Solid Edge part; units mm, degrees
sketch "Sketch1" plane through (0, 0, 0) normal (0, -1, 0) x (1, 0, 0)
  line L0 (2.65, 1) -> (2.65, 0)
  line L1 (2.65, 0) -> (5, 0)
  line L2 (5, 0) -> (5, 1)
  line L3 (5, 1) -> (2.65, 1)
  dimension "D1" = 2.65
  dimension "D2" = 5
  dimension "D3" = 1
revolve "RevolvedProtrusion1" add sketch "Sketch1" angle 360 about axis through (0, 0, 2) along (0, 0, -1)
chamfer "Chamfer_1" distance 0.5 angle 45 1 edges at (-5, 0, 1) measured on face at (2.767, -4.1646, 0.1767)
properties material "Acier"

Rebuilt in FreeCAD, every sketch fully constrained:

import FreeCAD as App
import Part
import Sketcher
from FreeCAD import Vector


def edges_at(feature, points):
    """Names of the edges that pass closest to the given points."""
    edges = feature.Shape.Edges
    near = lambda p: min(range(len(edges)), key=lambda i: edges[i].distToShape(Part.Vertex(*p))[0])
    return sorted({f"Edge{near(p) + 1}" for p in points})


def add_polygon(sketch, points):
    """Adds a closed chain of lines whose ends are joined by coincident constraints."""
    first, n = sketch.GeometryCount, len(points)
    for a, b in zip(points, points[1:] + points[:1]):
        sketch.addGeometry(Part.LineSegment(App.Vector(*a, 0), App.Vector(*b, 0)), False)
    for i in range(n):
        sketch.addConstraint(Sketcher.Constraint("Coincident", first + i, 2, first + (i + 1) % n, 1))

doc = App.newDocument("Part")
body = doc.addObject("PartDesign::Body", "Body")

# Sketch on XZ plane
sketch1 = doc.addObject("Sketcher::SketchObject", "Sketch")
body.addObject(sketch1)
sketch1.AttachmentSupport = (doc.XZ_Plane, [""])
sketch1.MapMode = "FlatFace"
add_polygon(sketch1, [(5, 1), (2.6, 1), (2.6, 0), (5, 0)])  # lines 0-3
sketch1.addConstraint([
    Sketcher.Constraint("Horizontal", 0),
    Sketcher.Constraint("Vertical", 1),
    Sketcher.Constraint("Horizontal", 2),
    Sketcher.Constraint("Vertical", 3),
    Sketcher.Constraint("PointOnObject", 1, 2, -1),
    Sketcher.Constraint("DistanceX", -1, 1, 2, 2, 5.0),
    Sketcher.Constraint("DistanceY", 1, 2, 1, 1, 1.0),
    Sketcher.Constraint("DistanceX", 0, 2, 0, 1, 2.35),
])
revolution = doc.addObject("PartDesign::Revolution", "Revolution")
body.addObject(revolution)
revolution.Profile = sketch1
revolution.ReferenceAxis = (sketch1, ["V_Axis"])
revolution.Angle = 360
doc.recompute()

chamfer = doc.addObject("PartDesign::Chamfer", "Chamfer")
body.addObject(chamfer)
chamfer.Base = (revolution, edges_at(revolution, [(-5, 0, 1)]))
chamfer.Size = 0.5

doc.recompute()
